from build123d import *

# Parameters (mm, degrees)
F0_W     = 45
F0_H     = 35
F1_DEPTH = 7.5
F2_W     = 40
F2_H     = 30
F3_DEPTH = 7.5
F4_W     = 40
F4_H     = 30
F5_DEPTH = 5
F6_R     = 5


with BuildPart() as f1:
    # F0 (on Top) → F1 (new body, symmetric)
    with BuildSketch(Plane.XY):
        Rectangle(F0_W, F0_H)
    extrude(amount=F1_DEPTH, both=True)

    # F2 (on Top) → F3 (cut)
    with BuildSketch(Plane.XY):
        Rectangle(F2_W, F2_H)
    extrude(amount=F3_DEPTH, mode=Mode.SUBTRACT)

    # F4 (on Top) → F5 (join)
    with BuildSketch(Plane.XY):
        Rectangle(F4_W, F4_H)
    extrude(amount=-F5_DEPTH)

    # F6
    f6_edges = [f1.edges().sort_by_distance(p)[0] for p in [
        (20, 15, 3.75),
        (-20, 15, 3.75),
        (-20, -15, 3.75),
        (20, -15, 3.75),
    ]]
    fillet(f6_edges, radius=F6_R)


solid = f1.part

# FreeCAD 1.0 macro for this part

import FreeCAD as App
import Part
import Sketcher
from FreeCAD import Vector
Q = App.Units.Quantity


def edges_at(feature, points):
    """Names of the edges that pass closest to the given points."""
    edges = feature.Shape.Edges
    near = lambda p: min(range(len(edges)), key=lambda i: edges[i].distToShape(Part.Vertex(*p))[0])
    return sorted({f"Edge{near(p) + 1}" for p in points})


def add_polygon(sketch, points):
    """Adds a closed chain of lines whose ends are joined by coincident constraints."""
    first, n = sketch.GeometryCount, len(points)
    for a, b in zip(points, points[1:] + points[:1]):
        sketch.addGeometry(Part.LineSegment(App.Vector(*a, 0), App.Vector(*b, 0)), False)
    for i in range(n):
        sketch.addConstraint(Sketcher.Constraint("Coincident", first + i, 2, first + (i + 1) % n, 1))

doc = App.newDocument("Part")
params = doc.addObject("Spreadsheet::Sheet", "Params")
for row, (alias, value) in enumerate([
    ("sketch1_width", "45 mm"),
    ("sketch1_height", "35 mm"),
    ("pad1_length", "15 mm"),
    ("sketch2_width", "40 mm"),
    ("sketch2_height", "30 mm"),
    ("pocket1_length", "7.5 mm"),
    ("sketch3_width", "40 mm"),
    ("sketch3_height", "30 mm"),
    ("pad2_length", "5 mm"),
    ("fillet_radius", "5 mm"),
], start=1):
    params.set(f"A{row}", alias)
    params.set(f"B{row}", "=" + value)
    params.setAlias(f"B{row}", alias)

body = doc.addObject("PartDesign::Body", "Body")

# Sketch on XY plane
sketch1 = body.newObject("Sketcher::SketchObject", "Sketch")
sketch1.AttachmentSupport = (doc.getObject("XY_Plane"), [""])
sketch1.MapMode = "FlatFace"
add_polygon(sketch1, [(-22, 18), (-22, -18), (22, -18), (22, 18)])  # lines 0-3
sketch1.addConstraint([
    Sketcher.Constraint("Vertical", 0),
    Sketcher.Constraint("Horizontal", 1),
    Sketcher.Constraint("Vertical", 2),
    Sketcher.Constraint("Horizontal", 3),
    Sketcher.Constraint("Symmetric", 0, 2, 2, 2, -1, 1),
    Sketcher.Constraint("DistanceX", 1, 1, 1, 2, Q("45 mm")),
    Sketcher.Constraint("DistanceY", 0, 2, 0, 1, Q("35 mm")),
])
sketch1.setExpression("Constraints[9]", "Params.sketch1_width")
sketch1.setExpression("Constraints[10]", "Params.sketch1_height")
pad1 = body.newObject("PartDesign::Pad", "Pad")
pad1.Profile = sketch1
pad1.setExpression("Length", "Params.pad1_length")
pad1.Midplane = True

# Sketch on XY plane
sketch2 = body.newObject("Sketcher::SketchObject", "Sketch001")
sketch2.AttachmentSupport = (doc.getObject("XY_Plane"), [""])
sketch2.MapMode = "FlatFace"
add_polygon(sketch2, [(-20, 15), (-20, -15), (20, -15), (20, 15)])  # lines 0-3
sketch2.addConstraint([
    Sketcher.Constraint("Vertical", 0),
    Sketcher.Constraint("Horizontal", 1),
    Sketcher.Constraint("Vertical", 2),
    Sketcher.Constraint("Horizontal", 3),
    Sketcher.Constraint("Symmetric", 0, 2, 2, 2, -1, 1),
    Sketcher.Constraint("DistanceX", 1, 1, 1, 2, Q("40 mm")),
    Sketcher.Constraint("DistanceY", 0, 2, 0, 1, Q("30 mm")),
])
sketch2.setExpression("Constraints[9]", "Params.sketch2_width")
sketch2.setExpression("Constraints[10]", "Params.sketch2_height")
pocket1 = body.newObject("PartDesign::Pocket", "Pocket")
pocket1.Profile = sketch2
pocket1.setExpression("Length", "Params.pocket1_length")
pocket1.Reversed = True

# Sketch on XY plane
sketch3 = body.newObject("Sketcher::SketchObject", "Sketch002")
sketch3.AttachmentSupport = (doc.getObject("XY_Plane"), [""])
sketch3.MapMode = "FlatFace"
add_polygon(sketch3, [(-20, 15), (-20, -15), (20, -15), (20, 15)])  # lines 0-3
sketch3.addConstraint([
    Sketcher.Constraint("Vertical", 0),
    Sketcher.Constraint("Horizontal", 1),
    Sketcher.Constraint("Vertical", 2),
    Sketcher.Constraint("Horizontal", 3),
    Sketcher.Constraint("Symmetric", 0, 2, 2, 2, -1, 1),
    Sketcher.Constraint("DistanceX", 1, 1, 1, 2, Q("40 mm")),
    Sketcher.Constraint("DistanceY", 0, 2, 0, 1, Q("30 mm")),
])
sketch3.setExpression("Constraints[9]", "Params.sketch3_width")
sketch3.setExpression("Constraints[10]", "Params.sketch3_height")
pad2 = body.newObject("PartDesign::Pad", "Pad001")
pad2.Profile = sketch3
pad2.setExpression("Length", "Params.pad2_length")
pad2.Reversed = True
doc.recompute()

fillet = body.newObject("PartDesign::Fillet", "Fillet")
fillet.Base = (pad2, edges_at(pad2, [
    (20, 15, 3.75),
    (-20, 15, 3.75),
    (-20, -15, 3.75),
    (20, -15, 3.75),
]))
fillet.setExpression("Radius", "Params.fillet_radius")

doc.recompute()
